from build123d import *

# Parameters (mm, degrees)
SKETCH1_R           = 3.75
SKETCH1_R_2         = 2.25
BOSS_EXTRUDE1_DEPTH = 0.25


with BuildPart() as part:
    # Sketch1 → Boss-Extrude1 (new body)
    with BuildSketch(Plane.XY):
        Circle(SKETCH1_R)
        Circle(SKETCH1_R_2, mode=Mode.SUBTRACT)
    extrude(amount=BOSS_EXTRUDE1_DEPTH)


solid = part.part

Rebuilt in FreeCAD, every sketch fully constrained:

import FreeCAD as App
import Part
import Sketcher
Q = App.Units.Quantity

doc = App.newDocument("Part")
body = doc.addObject("PartDesign::Body", "Body")

# Sketch on XY plane
sketch1 = doc.addObject("Sketcher::SketchObject", "Sketch")
body.addObject(sketch1)
sketch1.AttachmentSupport = (doc.XY_Plane, [""])
sketch1.MapMode = "FlatFace"
sketch1.addGeometry([
    Part.Circle(App.Vector(0, 0, 0), App.Vector(0, 0, 1), 3.75),
    Part.Circle(App.Vector(0, 0, 0), App.Vector(0, 0, 1), 2.25),
], False)
sketch1.addConstraint([
    Sketcher.Constraint("Coincident", 0, 3, -1, 1),
    Sketcher.Constraint("Coincident", 1, 3, -1, 1),
    Sketcher.Constraint("Diameter", 0, Q("7.5 mm")),
    Sketcher.Constraint("Diameter", 1, Q("4.5 mm")),
])
pad1 = doc.addObject("PartDesign::Pad", "Pad")
body.addObject(pad1)
pad1.Profile = sketch1
pad1.Length = 0.25

doc.recompute()
